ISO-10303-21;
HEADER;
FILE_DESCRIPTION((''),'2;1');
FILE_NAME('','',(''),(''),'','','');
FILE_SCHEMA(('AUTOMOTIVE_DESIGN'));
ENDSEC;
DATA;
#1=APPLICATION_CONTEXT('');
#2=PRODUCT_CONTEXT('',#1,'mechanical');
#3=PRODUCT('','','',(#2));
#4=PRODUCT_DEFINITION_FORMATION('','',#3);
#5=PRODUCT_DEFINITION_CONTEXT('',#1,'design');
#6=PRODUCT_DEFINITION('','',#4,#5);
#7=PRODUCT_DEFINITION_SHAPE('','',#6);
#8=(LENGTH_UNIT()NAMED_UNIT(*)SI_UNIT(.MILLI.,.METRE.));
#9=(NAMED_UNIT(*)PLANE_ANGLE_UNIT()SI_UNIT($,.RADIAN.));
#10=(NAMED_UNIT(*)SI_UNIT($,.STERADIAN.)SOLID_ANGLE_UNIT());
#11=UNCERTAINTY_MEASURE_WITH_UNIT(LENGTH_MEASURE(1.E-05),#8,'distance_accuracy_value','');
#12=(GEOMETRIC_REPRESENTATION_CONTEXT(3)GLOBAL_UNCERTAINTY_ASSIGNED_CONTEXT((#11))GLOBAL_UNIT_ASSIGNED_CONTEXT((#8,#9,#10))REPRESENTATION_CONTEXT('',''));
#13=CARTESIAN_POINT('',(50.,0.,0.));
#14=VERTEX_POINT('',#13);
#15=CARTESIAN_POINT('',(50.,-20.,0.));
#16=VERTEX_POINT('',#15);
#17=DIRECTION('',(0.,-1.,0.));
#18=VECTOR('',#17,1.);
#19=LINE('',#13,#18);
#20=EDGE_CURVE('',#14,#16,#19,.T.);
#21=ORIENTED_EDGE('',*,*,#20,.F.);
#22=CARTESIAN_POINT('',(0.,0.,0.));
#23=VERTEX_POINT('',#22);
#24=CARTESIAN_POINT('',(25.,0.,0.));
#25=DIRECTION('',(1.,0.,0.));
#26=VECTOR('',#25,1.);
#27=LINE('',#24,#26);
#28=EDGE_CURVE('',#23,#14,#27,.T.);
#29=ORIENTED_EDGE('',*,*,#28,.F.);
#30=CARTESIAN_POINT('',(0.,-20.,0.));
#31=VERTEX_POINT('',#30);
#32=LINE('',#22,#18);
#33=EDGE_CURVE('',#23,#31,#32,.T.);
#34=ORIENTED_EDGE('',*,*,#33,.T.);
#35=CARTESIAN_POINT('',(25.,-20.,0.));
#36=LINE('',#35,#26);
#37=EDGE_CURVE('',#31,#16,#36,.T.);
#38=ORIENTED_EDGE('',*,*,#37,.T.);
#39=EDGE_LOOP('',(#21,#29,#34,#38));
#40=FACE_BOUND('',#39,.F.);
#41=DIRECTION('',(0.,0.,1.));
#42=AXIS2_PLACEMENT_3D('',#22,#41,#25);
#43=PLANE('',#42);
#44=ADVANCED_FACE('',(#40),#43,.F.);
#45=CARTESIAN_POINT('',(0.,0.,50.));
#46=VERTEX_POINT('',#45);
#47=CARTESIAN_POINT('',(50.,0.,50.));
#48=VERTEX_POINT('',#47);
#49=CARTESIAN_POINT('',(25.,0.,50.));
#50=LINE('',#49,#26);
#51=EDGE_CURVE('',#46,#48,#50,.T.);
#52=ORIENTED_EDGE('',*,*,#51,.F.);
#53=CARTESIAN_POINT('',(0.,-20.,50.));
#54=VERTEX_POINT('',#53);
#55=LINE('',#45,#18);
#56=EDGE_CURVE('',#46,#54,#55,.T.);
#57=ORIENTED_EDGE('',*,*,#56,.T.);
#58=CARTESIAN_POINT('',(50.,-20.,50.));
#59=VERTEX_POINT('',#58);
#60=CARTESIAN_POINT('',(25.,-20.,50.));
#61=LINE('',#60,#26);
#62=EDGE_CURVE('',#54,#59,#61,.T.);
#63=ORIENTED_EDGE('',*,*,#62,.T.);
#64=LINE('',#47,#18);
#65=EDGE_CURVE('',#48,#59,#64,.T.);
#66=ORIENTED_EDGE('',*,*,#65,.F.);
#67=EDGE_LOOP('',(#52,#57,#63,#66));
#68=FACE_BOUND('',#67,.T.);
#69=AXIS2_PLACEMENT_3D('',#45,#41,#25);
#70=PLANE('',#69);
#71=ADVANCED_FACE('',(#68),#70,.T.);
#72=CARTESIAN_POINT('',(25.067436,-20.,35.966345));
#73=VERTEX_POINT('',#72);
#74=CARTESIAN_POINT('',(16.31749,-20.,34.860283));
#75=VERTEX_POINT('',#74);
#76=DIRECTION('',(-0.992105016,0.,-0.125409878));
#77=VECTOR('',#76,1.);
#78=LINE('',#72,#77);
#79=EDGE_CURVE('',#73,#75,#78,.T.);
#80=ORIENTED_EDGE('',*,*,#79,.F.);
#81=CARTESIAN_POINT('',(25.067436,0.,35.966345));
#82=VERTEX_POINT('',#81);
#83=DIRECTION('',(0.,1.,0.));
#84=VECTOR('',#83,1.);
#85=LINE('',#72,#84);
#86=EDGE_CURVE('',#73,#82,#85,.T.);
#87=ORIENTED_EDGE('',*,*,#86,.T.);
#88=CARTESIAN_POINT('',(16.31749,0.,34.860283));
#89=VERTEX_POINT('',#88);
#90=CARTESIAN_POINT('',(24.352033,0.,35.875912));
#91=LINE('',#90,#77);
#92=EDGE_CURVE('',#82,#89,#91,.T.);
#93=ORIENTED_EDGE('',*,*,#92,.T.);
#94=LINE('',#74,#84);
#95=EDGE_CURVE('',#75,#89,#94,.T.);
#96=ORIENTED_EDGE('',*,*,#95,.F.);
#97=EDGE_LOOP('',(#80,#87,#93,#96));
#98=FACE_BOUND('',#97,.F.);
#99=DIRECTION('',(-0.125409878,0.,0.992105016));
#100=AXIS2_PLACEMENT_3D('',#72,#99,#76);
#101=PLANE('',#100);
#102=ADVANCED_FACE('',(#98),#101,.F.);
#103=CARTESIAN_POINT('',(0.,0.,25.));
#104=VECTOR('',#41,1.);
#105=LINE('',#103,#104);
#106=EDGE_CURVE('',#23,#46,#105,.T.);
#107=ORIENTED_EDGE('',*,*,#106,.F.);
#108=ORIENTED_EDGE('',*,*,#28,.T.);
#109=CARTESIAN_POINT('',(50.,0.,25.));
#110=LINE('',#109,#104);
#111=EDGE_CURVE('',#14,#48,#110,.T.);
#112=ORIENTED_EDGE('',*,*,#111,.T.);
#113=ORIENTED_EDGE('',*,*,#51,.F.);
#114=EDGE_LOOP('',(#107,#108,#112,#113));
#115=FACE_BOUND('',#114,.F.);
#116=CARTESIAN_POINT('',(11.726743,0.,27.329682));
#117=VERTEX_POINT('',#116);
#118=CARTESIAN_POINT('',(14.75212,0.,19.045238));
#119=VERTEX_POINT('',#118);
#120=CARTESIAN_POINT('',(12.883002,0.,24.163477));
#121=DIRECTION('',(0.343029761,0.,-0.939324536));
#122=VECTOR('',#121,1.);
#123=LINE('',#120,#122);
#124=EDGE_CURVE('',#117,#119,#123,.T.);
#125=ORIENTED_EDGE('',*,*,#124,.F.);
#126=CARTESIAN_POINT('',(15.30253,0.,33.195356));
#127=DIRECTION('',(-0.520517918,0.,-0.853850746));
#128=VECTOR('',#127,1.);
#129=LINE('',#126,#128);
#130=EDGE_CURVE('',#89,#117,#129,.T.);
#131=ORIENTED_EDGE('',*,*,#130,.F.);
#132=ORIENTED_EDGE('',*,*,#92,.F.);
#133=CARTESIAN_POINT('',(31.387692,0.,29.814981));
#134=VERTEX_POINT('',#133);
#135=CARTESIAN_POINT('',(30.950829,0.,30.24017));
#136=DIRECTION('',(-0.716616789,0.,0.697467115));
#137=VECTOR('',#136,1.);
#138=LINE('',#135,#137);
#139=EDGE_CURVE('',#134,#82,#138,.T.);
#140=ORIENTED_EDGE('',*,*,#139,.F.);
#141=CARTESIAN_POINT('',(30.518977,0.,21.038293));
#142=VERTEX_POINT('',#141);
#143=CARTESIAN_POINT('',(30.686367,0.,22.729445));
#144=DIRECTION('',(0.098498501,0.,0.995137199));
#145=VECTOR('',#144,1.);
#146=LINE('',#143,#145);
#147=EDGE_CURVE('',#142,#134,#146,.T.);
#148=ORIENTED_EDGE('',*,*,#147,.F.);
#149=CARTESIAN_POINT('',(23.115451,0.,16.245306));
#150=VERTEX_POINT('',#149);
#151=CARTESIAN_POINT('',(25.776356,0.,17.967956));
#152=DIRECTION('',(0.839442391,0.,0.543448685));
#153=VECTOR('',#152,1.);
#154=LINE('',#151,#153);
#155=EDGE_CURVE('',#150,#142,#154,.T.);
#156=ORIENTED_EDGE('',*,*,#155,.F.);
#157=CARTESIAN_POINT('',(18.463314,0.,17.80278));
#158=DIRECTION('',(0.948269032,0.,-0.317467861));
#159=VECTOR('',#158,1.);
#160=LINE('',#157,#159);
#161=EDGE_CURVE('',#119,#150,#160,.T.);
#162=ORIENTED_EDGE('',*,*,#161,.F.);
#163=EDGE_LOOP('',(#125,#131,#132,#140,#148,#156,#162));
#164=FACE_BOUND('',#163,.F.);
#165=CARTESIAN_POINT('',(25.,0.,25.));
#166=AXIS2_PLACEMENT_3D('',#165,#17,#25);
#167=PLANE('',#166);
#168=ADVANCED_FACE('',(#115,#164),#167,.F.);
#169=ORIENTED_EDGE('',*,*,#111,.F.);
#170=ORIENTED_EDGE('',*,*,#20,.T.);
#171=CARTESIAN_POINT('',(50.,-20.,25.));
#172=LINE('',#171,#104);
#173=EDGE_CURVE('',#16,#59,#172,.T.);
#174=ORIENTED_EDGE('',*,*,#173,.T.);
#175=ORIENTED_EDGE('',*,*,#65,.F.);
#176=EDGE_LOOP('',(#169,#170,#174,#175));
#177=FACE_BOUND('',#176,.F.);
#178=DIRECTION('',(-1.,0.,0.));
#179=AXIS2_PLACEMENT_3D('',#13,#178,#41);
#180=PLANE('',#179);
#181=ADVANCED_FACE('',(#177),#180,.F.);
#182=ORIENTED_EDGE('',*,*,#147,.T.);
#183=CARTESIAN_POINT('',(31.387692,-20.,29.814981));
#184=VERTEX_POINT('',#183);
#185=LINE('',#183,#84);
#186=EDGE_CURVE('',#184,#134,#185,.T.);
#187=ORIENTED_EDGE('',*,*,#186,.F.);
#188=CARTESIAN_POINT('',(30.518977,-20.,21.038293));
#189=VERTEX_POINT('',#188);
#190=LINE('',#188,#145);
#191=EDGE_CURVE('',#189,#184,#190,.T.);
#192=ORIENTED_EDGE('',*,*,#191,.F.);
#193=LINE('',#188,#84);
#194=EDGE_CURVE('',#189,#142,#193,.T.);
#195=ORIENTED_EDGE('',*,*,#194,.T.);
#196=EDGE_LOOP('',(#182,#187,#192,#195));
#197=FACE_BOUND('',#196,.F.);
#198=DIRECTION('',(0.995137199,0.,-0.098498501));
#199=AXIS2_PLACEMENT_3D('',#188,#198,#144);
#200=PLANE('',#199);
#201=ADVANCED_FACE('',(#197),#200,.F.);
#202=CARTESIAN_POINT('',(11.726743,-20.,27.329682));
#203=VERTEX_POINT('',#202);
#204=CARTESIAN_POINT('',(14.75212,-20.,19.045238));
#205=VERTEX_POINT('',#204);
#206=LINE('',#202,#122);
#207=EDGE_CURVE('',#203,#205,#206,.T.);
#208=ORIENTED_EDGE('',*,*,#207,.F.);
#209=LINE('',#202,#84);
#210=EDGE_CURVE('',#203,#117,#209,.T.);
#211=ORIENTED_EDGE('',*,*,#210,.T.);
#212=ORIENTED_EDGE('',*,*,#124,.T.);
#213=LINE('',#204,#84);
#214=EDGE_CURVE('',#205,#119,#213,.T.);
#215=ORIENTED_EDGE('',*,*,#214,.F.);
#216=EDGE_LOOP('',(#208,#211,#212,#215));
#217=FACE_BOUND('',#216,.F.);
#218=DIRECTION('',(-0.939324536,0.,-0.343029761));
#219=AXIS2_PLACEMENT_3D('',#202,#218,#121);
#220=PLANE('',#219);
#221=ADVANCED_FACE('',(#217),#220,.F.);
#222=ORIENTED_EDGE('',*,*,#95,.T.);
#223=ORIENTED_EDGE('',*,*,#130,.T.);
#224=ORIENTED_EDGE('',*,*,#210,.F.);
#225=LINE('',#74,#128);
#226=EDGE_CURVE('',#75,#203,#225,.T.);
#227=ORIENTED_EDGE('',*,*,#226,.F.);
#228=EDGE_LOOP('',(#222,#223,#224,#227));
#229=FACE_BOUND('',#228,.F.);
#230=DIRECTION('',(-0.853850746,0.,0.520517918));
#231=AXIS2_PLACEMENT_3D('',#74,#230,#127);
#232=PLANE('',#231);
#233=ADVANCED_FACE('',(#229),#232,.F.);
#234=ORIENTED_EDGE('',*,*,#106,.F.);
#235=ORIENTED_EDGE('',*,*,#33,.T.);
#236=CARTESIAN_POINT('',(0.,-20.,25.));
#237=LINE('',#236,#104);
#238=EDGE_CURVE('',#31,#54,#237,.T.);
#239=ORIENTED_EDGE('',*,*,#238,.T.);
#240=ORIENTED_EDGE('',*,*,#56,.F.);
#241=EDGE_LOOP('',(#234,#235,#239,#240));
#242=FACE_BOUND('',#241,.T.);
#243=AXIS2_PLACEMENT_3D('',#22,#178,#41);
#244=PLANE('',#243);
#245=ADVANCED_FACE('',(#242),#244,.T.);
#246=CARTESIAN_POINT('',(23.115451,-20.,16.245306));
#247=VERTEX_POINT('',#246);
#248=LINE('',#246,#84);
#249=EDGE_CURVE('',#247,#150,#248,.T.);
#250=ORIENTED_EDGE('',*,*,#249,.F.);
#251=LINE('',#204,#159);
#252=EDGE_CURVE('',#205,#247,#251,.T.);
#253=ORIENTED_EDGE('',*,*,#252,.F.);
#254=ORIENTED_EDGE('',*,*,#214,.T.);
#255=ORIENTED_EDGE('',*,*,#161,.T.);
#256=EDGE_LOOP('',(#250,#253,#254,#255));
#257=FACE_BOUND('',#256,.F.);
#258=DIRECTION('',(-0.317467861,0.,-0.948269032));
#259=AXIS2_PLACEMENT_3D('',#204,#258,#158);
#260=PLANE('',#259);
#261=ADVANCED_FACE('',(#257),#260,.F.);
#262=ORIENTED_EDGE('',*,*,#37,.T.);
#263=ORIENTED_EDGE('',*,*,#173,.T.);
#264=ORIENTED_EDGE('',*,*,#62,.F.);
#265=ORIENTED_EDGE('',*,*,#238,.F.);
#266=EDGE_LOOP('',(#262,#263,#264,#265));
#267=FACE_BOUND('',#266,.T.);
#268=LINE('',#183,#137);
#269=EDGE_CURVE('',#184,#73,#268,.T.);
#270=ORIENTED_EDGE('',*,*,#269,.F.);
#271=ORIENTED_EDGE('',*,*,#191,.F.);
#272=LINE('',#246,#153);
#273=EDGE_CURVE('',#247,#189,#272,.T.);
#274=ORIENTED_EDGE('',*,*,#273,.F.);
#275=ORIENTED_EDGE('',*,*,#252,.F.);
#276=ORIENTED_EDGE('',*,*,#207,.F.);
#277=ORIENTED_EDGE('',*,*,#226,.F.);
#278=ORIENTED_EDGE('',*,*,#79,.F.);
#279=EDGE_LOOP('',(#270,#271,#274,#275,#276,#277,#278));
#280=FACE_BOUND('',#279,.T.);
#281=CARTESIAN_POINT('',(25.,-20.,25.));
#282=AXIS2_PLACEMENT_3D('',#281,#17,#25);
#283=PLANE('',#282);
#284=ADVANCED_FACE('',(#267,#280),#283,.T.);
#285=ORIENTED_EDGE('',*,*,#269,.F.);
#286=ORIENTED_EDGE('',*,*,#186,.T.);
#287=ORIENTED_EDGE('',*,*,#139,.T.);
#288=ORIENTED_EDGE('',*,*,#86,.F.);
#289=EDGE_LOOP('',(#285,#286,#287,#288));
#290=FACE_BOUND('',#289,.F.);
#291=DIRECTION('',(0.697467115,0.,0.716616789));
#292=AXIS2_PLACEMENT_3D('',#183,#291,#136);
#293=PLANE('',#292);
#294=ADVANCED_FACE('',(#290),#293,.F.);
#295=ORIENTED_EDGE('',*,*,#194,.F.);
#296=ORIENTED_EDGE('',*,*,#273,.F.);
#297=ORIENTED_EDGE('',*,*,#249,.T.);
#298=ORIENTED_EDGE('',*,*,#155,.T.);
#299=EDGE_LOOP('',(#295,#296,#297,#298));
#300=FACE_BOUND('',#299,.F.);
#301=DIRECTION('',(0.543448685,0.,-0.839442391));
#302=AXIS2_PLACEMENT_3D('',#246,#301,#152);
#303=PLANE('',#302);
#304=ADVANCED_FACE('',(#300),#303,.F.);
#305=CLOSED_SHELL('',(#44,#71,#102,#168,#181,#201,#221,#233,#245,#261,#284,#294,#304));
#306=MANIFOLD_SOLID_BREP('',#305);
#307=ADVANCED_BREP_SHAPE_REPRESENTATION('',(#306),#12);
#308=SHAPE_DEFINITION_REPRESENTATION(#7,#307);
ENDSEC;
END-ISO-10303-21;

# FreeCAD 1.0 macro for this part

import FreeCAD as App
import Part
import Sketcher

V = App.Vector
Q = App.Units.Quantity


def add_polygon(sketch, points):
    """Adds a closed chain of lines whose ends are joined by coincident constraints."""
    first, n = sketch.GeometryCount, len(points)
    for a, b in zip(points, points[1:] + points[:1]):
        sketch.addGeometry(Part.LineSegment(App.Vector(*a, 0), App.Vector(*b, 0)), False)
    for i in range(n):
        sketch.addConstraint(Sketcher.Constraint("Coincident", first + i, 2, first + (i + 1) % n, 1))

doc = App.newDocument("Part")
body = doc.addObject("PartDesign::Body", "Body")

sketch1 = doc.addObject("Sketcher::SketchObject", "Sketch")
body.addObject(sketch1)
sketch1.AttachmentSupport = (doc.XZ_Plane, [""])
sketch1.MapMode = "FlatFace"
add_polygon(sketch1, [(0, 50), (0, 0), (50, 0), (50, 50)])
sketch1.addConstraint(Sketcher.Constraint("Vertical", 0))
sketch1.addConstraint(Sketcher.Constraint("Horizontal", 1))
sketch1.addConstraint(Sketcher.Constraint("Vertical", 2))
sketch1.addConstraint(Sketcher.Constraint("Horizontal", 3))
sketch1.addConstraint(Sketcher.Constraint("Coincident", 0, 2, -1, 1))
sketch1.addConstraint(Sketcher.Constraint("Equal", 3, 0))
sketch1.addConstraint(Sketcher.Constraint("DistanceX", 1, 1, 1, 2, Q("50 mm")))
pad1 = doc.addObject("PartDesign::Pad", "Pad")
body.addObject(pad1)
pad1.Profile = sketch1
pad1.Length = 20

sketch2 = doc.addObject("Sketcher::SketchObject", "Sketch001")
body.addObject(sketch2)
sketch2.AttachmentSupport = (doc.XZ_Plane, [""])
sketch2.MapMode = "FlatFace"
sketch2.AttachmentOffset = App.Placement(V(0, 0, 20), App.Rotation())
add_polygon(sketch2, [(25, 36), (16, 35), (12, 27), (15, 19), (23, 16), (31, 21), (31, 30)])
sketch2.addConstraint(Sketcher.Constraint("Equal", 0, 1))
sketch2.addConstraint(Sketcher.Constraint("Equal", 1, 2))
sketch2.addConstraint(Sketcher.Constraint("Equal", 2, 3))
sketch2.addConstraint(Sketcher.Constraint("Equal", 3, 4))
sketch2.addConstraint(Sketcher.Constraint("Equal", 4, 5))
sketch2.addConstraint(Sketcher.Constraint("Equal", 5, 6))
sketch2.addConstraint(Sketcher.Constraint("DistanceY", 1, 2, 0, 2, Q("7.530601 mm")))
sketch2.addConstraint(Sketcher.Constraint("DistanceY", 1, 2, 5, 2, Q("2.485299 mm")))
sketch2.addConstraint(Sketcher.Constraint("DistanceX", -1, 1, 0, 2, Q("16.31749 mm")))
sketch2.addConstraint(Sketcher.Constraint("DistanceY", -1, 1, 1, 2, Q("27.329682 mm")))
sketch2.addConstraint(Sketcher.Constraint("DistanceX", -1, 1, 2, 2, Q("14.75212 mm")))
sketch2.addConstraint(Sketcher.Constraint("DistanceY", -1, 1, 2, 2, Q("19.045238 mm")))
sketch2.addConstraint(Sketcher.Constraint("DistanceX", -1, 1, 3, 2, Q("23.115451 mm")))
sketch2.addConstraint(Sketcher.Constraint("DistanceY", 4, 2, 1, 2, Q("6.291389 mm")))
pocket1 = doc.addObject("PartDesign::Pocket", "Pocket")
body.addObject(pocket1)
pocket1.Profile = sketch2
pocket1.Length = 44.2

doc.recompute()
